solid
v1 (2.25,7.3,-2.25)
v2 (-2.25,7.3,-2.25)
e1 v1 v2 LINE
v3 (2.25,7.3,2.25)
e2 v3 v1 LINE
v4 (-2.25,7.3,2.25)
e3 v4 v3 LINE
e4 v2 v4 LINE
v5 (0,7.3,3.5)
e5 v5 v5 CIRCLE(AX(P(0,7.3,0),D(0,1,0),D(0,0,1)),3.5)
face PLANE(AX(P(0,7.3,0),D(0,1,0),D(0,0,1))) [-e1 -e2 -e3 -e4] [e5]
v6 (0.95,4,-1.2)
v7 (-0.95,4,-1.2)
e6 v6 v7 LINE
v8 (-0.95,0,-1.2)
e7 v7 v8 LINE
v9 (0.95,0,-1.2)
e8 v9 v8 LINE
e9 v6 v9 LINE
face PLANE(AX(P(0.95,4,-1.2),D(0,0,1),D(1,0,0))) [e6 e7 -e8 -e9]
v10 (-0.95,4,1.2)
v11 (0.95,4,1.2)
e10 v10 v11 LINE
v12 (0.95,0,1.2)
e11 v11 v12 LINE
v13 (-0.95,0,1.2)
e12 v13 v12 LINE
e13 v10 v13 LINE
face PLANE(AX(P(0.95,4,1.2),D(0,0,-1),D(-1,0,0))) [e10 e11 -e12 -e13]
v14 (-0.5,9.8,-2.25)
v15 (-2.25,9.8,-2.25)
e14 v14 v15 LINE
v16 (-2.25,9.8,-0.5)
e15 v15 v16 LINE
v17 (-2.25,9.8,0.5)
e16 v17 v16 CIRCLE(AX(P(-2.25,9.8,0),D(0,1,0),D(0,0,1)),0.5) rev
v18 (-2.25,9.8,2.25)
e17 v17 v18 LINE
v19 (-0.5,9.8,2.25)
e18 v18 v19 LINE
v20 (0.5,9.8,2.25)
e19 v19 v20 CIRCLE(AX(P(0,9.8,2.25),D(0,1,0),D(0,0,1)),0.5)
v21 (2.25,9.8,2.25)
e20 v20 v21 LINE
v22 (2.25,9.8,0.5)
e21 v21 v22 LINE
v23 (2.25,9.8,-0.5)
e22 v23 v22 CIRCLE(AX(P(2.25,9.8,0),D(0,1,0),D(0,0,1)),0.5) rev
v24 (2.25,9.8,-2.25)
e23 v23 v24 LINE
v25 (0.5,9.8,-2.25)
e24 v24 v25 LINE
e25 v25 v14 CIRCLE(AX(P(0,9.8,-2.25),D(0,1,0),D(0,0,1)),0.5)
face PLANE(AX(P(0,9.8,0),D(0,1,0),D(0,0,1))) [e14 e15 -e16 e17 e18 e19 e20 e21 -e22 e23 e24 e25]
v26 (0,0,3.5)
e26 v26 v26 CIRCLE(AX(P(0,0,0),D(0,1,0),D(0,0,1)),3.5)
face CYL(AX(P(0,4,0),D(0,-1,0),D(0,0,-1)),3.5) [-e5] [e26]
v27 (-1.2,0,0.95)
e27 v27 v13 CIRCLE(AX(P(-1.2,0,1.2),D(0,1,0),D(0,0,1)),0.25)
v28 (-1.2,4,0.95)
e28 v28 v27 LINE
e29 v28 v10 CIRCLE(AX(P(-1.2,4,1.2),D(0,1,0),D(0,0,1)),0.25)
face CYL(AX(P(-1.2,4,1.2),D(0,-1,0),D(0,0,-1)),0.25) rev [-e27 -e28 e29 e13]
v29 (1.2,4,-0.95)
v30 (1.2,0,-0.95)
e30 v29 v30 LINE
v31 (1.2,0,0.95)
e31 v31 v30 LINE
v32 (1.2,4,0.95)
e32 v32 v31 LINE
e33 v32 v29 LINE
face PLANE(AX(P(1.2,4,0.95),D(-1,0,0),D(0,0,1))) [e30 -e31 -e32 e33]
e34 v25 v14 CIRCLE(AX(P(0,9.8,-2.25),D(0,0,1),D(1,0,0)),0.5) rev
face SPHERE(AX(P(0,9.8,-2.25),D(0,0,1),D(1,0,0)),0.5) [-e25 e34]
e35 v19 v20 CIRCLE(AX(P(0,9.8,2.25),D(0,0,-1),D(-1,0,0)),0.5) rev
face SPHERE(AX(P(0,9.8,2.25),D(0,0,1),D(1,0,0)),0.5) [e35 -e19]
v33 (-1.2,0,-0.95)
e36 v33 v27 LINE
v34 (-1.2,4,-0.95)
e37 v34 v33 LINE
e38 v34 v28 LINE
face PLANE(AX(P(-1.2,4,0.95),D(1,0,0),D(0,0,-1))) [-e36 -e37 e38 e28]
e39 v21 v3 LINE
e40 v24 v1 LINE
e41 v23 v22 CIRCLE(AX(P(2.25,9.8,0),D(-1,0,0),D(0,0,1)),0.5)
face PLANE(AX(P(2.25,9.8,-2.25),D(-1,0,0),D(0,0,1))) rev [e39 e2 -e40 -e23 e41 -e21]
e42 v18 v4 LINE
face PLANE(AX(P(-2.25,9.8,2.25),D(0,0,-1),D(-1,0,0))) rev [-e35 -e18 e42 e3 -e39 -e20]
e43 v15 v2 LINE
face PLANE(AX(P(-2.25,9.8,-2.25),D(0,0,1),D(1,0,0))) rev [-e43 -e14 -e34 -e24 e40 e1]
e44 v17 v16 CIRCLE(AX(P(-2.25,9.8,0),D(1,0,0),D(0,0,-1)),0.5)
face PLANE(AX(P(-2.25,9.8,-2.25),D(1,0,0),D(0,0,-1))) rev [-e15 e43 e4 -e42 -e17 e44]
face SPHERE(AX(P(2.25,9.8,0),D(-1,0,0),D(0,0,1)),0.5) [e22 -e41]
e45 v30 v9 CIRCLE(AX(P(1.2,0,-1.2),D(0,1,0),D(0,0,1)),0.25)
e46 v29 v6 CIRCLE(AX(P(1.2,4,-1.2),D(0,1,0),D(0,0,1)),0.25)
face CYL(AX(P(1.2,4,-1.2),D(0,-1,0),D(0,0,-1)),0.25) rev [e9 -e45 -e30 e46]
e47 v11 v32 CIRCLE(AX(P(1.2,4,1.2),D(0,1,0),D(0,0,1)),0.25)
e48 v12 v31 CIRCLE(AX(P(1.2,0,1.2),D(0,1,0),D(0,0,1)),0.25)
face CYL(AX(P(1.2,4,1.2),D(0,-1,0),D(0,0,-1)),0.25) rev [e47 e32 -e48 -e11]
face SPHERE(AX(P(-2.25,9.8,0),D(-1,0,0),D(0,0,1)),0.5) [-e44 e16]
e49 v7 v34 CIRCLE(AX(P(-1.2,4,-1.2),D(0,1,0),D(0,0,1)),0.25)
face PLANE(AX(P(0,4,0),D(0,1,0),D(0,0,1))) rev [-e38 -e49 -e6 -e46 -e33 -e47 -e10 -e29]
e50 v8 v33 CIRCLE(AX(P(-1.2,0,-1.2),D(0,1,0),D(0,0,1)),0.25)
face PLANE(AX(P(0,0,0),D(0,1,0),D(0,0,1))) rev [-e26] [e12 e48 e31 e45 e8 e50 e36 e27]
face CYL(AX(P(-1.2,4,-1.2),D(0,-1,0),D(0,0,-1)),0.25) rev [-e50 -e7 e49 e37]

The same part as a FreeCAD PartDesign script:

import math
import FreeCAD as App
import Part
import Sketcher

V = App.Vector


def add_polygon(sketch, points):
    """Adds a closed chain of lines whose ends are joined by coincident constraints."""
    first, n = sketch.GeometryCount, len(points)
    for a, b in zip(points, points[1:] + points[:1]):
        sketch.addGeometry(Part.LineSegment(App.Vector(*a, 0), App.Vector(*b, 0)), False)
    for i in range(n):
        sketch.addConstraint(Sketcher.Constraint("Coincident", first + i, 2, first + (i + 1) % n, 1))

doc = App.newDocument("Part")
body = doc.addObject("PartDesign::Body", "Body")

# Sketch on XZ plane
sketch1 = body.newObject("Sketcher::SketchObject", "Sketch")
sketch1.AttachmentSupport = (doc.getObject("XZ_Plane"), [""])
sketch1.MapMode = "FlatFace"
sketch1.addGeometry(Part.Circle(V(0, 0, 0), V(0, 0, 1), 3.5), False)
sketch1.addGeometry(Part.ArcOfCircle(Part.Circle(V(1.2, 1.2, 0), V(0, 0, 1), 0.25), math.radians(-90), math.radians(180)), False)
sketch1.addGeometry(Part.LineSegment(V(0.95, 1.2, 0), V(-0.95, 1.2, 0)), False)
sketch1.addGeometry(Part.ArcOfCircle(Part.Circle(V(-1.2, 1.2, 0), V(0, 0, 1), 0.25), math.radians(0), math.radians(270)), False)
sketch1.addGeometry(Part.LineSegment(V(-1.2, 0.95, 0), V(-1.2, -0.95, 0)), False)
sketch1.addGeometry(Part.ArcOfCircle(Part.Circle(V(-1.2, -1.2, 0), V(0, 0, 1), 0.25), math.radians(90), math.radians(360)), False)
sketch1.addGeometry(Part.LineSegment(V(-0.95, -1.2, 0), V(0.95, -1.2, 0)), False)
sketch1.addGeometry(Part.ArcOfCircle(Part.Circle(V(1.2, -1.2, 0), V(0, 0, 1), 0.25), math.radians(180), math.radians(450)), False)
sketch1.addGeometry(Part.LineSegment(V(1.2, -0.95, 0), V(1.2, 0.95, 0)), False)
sketch1.addConstraint(Sketcher.Constraint("Coincident", 1, 2, 2, 1))
sketch1.addConstraint(Sketcher.Constraint("Coincident", 2, 2, 3, 1))
sketch1.addConstraint(Sketcher.Constraint("Coincident", 3, 2, 4, 1))
sketch1.addConstraint(Sketcher.Constraint("Coincident", 4, 2, 5, 1))
sketch1.addConstraint(Sketcher.Constraint("Coincident", 5, 2, 6, 1))
sketch1.addConstraint(Sketcher.Constraint("Coincident", 6, 2, 7, 1))
sketch1.addConstraint(Sketcher.Constraint("Coincident", 7, 2, 8, 1))
sketch1.addConstraint(Sketcher.Constraint("Coincident", 8, 2, 1, 1))
sketch1.addConstraint(Sketcher.Constraint("Horizontal", 2))
sketch1.addConstraint(Sketcher.Constraint("Vertical", 4))
sketch1.addConstraint(Sketcher.Constraint("Horizontal", 6))
sketch1.addConstraint(Sketcher.Constraint("Vertical", 8))
sketch1.addConstraint(Sketcher.Constraint("Coincident", 0, 3, -1, 1))
sketch1.addConstraint(Sketcher.Constraint("Equal", 1, 3))
sketch1.addConstraint(Sketcher.Constraint("Equal", 3, 5))
sketch1.addConstraint(Sketcher.Constraint("Equal", 5, 7))
sketch1.addConstraint(Sketcher.Constraint("Symmetric", 1, 3, 5, 3, -1, 1))
sketch1.addConstraint(Sketcher.Constraint("Symmetric", 3, 3, 7, 3, -1, 1))
sketch1.addConstraint(Sketcher.Constraint("Symmetric", 1, 3, 3, 3, -2))
sketch1.addConstraint(Sketcher.Constraint("Horizontal", 3, 3, 1, 2))
sketch1.addConstraint(Sketcher.Constraint("Horizontal", 7, 3, 5, 2))
sketch1.addConstraint(Sketcher.Constraint("Vertical", 5, 3, 3, 2))
sketch1.addConstraint(Sketcher.Constraint("Vertical", 1, 3, 7, 2))
sketch1.addConstraint(Sketcher.Constraint("Equal", 6, 4))
sketch1.addConstraint(Sketcher.Constraint("Diameter", 0, 7.0))
sketch1.addConstraint(Sketcher.Constraint("Radius", 1, 0.25))
sketch1.addConstraint(Sketcher.Constraint("DistanceX", 2, 2, 2, 1, 1.9))
pad1 = body.newObject("PartDesign::Pad", "Pad")
pad1.Profile = sketch1
pad1.Length = 4
pad1.Reversed = True

# Sketch on XZ plane
sketch2 = body.newObject("Sketcher::SketchObject", "Sketch001")
sketch2.AttachmentSupport = (doc.getObject("XZ_Plane"), [""])
sketch2.MapMode = "FlatFace"
sketch2.AttachmentOffset = App.Placement(V(0, 0, -4), App.Rotation())
sketch2.addGeometry(Part.Circle(V(0, 0, 0), V(0, 0, 1), 3.5), False)
sketch2.addConstraint(Sketcher.Constraint("Coincident", 0, 3, -1, 1))
sketch2.addConstraint(Sketcher.Constraint("Diameter", 0, 7.0))
pad2 = body.newObject("PartDesign::Pad", "Pad001")
pad2.Profile = sketch2
pad2.Length = 3.3
pad2.Reversed = True

# Sketch on XZ plane
sketch3 = body.newObject("Sketcher::SketchObject", "Sketch002")
sketch3.AttachmentSupport = (doc.getObject("XZ_Plane"), [""])
sketch3.MapMode = "FlatFace"
sketch3.AttachmentOffset = App.Placement(V(0, 0, -7.3), App.Rotation())
add_polygon(sketch3, [(-2.2, -2.2), (-2.2, 2.2), (2.2, 2.2), (2.2, -2.2)])  # lines 0-3
sketch3.addConstraint(Sketcher.Constraint("Vertical", 0))
sketch3.addConstraint(Sketcher.Constraint("Horizontal", 1))
sketch3.addConstraint(Sketcher.Constraint("Vertical", 2))
sketch3.addConstraint(Sketcher.Constraint("Horizontal", 3))
sketch3.addConstraint(Sketcher.Constraint("Symmetric", 0, 2, 2, 2, -1, 1))
sketch3.addConstraint(Sketcher.Constraint("Equal", 3, 0))
sketch3.addConstraint(Sketcher.Constraint("DistanceX", 1, 1, 1, 2, 4.5))
pad3 = body.newObject("PartDesign::Pad", "Pad002")
pad3.Profile = sketch3
pad3.Length = 2.5
pad3.Reversed = True

# Sketch on XZ plane
sketch4 = body.newObject("Sketcher::SketchObject", "Sketch003")
sketch4.AttachmentSupport = (doc.getObject("XZ_Plane"), [""])
sketch4.MapMode = "FlatFace"
sketch4.AttachmentOffset = App.Placement(V(0, 0, -9.8), App.Rotation())
sketch4.addGeometry(Part.LineSegment(V(-1.8, 0, 0), V(-2.8, 0, 0)), False)
sketch4.addGeometry(Part.ArcOfCircle(Part.Circle(V(-2.2, 0, 0), V(0, 0, 1), 0.5), math.radians(0), math.radians(180)), False)
sketch4.addGeometry(Part.LineSegment(V(2.8, 0, 0), V(1.8, 0, 0)), False)
sketch4.addGeometry(Part.ArcOfCircle(Part.Circle(V(2.2, 0, 0), V(0, 0, 1), 0.5), math.radians(0), math.radians(180)), False)
sketch4.addConstraint(Sketcher.Constraint("Coincident", 0, 1, 1, 1))
sketch4.addConstraint(Sketcher.Constraint("Coincident", 1, 2, 0, 2))
sketch4.addConstraint(Sketcher.Constraint("Coincident", 2, 1, 3, 1))
sketch4.addConstraint(Sketcher.Constraint("Coincident", 3, 2, 2, 2))
sketch4.addConstraint(Sketcher.Constraint("Horizontal", 0))
sketch4.addConstraint(Sketcher.Constraint("Horizontal", 2))
sketch4.addConstraint(Sketcher.Constraint("Equal", 1, 3))
sketch4.addConstraint(Sketcher.Constraint("Symmetric", 1, 3, 3, 3, -1, 1))
sketch4.addConstraint(Sketcher.Constraint("PointOnObject", 1, 3, -1))
sketch4.addConstraint(Sketcher.Constraint("PointOnObject", 0, 1, -1))
sketch4.addConstraint(Sketcher.Constraint("PointOnObject", 2, 1, -1))
sketch4.addConstraint(Sketcher.Constraint("Radius", 1, 0.5))
sketch4.addConstraint(Sketcher.Constraint("DistanceX", 0, 1, 3, 3, 4.0))
revolution = body.newObject("PartDesign::Revolution", "Revolution")
revolution.Profile = sketch4
revolution.ReferenceAxis = (sketch4, ["H_Axis"])
revolution.Angle = 360

# Sketch on XZ plane
sketch5 = body.newObject("Sketcher::SketchObject", "Sketch004")
sketch5.AttachmentSupport = (doc.getObject("XZ_Plane"), [""])
sketch5.MapMode = "FlatFace"
sketch5.AttachmentOffset = App.Placement(V(0, 0, -9.8), App.Rotation())
sketch5.addGeometry(Part.LineSegment(V(0, 2.8, 0), V(0, 1.8, 0)), False)
sketch5.addGeometry(Part.ArcOfCircle(Part.Circle(V(0, 2.2, 0), V(0, 0, 1), 0.5), math.radians(90), math.radians(270)), False)
sketch5.addGeometry(Part.LineSegment(V(0, -1.8, 0), V(0, -2.8, 0)), False)
sketch5.addGeometry(Part.ArcOfCircle(Part.Circle(V(0, -2.2, 0), V(0, 0, 1), 0.5), math.radians(90), math.radians(270)), False)
sketch5.addConstraint(Sketcher.Constraint("Coincident", 0, 1, 1, 1))
sketch5.addConstraint(Sketcher.Constraint("Coincident", 1, 2, 0, 2))
sketch5.addConstraint(Sketcher.Constraint("Coincident", 2, 1, 3, 1))
sketch5.addConstraint(Sketcher.Constraint("Coincident", 3, 2, 2, 2))
sketch5.addConstraint(Sketcher.Constraint("Vertical", 0))
sketch5.addConstraint(Sketcher.Constraint("Vertical", 2))
sketch5.addConstraint(Sketcher.Constraint("Equal", 1, 3))
sketch5.addConstraint(Sketcher.Constraint("Symmetric", 1, 3, 3, 3, -1, 1))
sketch5.addConstraint(Sketcher.Constraint("PointOnObject", 1, 3, -2))
sketch5.addConstraint(Sketcher.Constraint("PointOnObject", 0, 1, -2))
sketch5.addConstraint(Sketcher.Constraint("PointOnObject", 2, 1, -2))
sketch5.addConstraint(Sketcher.Constraint("Radius", 1, 0.5))
sketch5.addConstraint(Sketcher.Constraint("DistanceY", 3, 3, 0, 1, 5.0))
revolution2 = body.newObject("PartDesign::Revolution", "Revolution001")
revolution2.Profile = sketch5
revolution2.ReferenceAxis = (sketch5, ["V_Axis"])
revolution2.Angle = 360

# Sketch on XZ plane
sketch6 = body.newObject("Sketcher::SketchObject", "Sketch005")
sketch6.AttachmentSupport = (doc.getObject("XZ_Plane"), [""])
sketch6.MapMode = "FlatFace"
sketch6.AttachmentOffset = App.Placement(V(0, 0, -9.8), App.Rotation())
sketch6.addGeometry(Part.Circle(V(0, 0, 0), V(0, 0, 1), 3.5), False)
sketch6.addConstraint(Sketcher.Constraint("Coincident", 0, 3, -1, 1))
sketch6.addConstraint(Sketcher.Constraint("Diameter", 0, 7.0))
pocket1 = body.newObject("PartDesign::Pocket", "Pocket")
pocket1.Profile = sketch6
pocket1.Length = 10

doc.recompute()
